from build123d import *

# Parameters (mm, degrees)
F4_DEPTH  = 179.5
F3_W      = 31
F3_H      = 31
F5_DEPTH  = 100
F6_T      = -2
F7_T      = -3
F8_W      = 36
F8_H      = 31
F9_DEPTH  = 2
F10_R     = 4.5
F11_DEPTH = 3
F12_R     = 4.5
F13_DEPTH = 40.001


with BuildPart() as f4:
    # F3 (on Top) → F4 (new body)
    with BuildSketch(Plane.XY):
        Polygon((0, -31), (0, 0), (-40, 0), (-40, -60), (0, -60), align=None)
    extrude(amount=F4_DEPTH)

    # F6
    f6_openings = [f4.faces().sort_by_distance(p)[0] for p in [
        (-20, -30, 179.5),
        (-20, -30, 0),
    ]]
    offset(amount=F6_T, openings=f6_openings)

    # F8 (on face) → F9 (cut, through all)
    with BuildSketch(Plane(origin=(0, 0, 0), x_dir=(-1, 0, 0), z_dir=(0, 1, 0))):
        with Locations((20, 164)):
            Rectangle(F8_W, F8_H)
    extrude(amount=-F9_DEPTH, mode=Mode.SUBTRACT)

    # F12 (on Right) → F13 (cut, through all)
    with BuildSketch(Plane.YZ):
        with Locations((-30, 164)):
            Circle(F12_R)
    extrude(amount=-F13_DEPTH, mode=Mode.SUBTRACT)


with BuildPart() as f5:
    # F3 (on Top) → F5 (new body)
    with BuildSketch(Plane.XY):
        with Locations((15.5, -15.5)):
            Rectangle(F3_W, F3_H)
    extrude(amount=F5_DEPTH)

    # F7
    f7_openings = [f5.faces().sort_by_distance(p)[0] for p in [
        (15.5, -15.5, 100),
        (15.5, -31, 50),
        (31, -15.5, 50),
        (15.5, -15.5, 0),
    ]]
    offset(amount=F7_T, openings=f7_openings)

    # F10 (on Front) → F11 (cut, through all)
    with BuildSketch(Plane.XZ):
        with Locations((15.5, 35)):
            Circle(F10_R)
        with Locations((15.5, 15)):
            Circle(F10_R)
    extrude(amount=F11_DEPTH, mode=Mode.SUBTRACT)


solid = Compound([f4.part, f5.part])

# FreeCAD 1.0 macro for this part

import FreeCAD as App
import Part
import Sketcher
from FreeCAD import Vector
Q = App.Units.Quantity


def faces_at(feature, points):
    """Names of the faces that lie closest to the given points."""
    faces = feature.Shape.Faces
    near = lambda p: min(range(len(faces)), key=lambda i: faces[i].distToShape(Part.Vertex(*p))[0])
    return sorted({f"Face{near(p) + 1}" for p in points})

doc = App.newDocument("Part")
params = doc.addObject("Spreadsheet::Sheet", "Params")
for row, (alias, value) in enumerate([
    ("sketch1_width", "40 mm"),
    ("sketch1_height", "60 mm"),
    ("pad1_length", "179.5 mm"),
    ("thickness_wall", "2 mm"),
    ("sketch2_width", "36 mm"),
    ("sketch2_height", "31 mm"),
    ("pocket1_length", "2 mm"),
    ("sketch3_diameter", "9 mm"),
    ("sketch4_width", "31 mm"),
    ("pad2_length", "100 mm"),
    ("thickness2_wall", "3 mm"),
    ("sketch5_diameter", "9 mm"),
], start=1):
    params.set(f"A{row}", alias)
    params.set(f"B{row}", "=" + value)
    params.setAlias(f"B{row}", alias)

body = doc.addObject("PartDesign::Body", "Body")

sketch1 = body.newObject("Sketcher::SketchObject", "Sketch")
sketch1.AttachmentSupport = (doc.getObject("XY_Plane"), [""])
sketch1.MapMode = "FlatFace"
sketch1.addGeometry([
    Part.LineSegment(Vector(0, 0, 0), Vector(-40, 0, 0)),
    Part.LineSegment(Vector(-40, 0, 0), Vector(-40, -60, 0)),
    Part.LineSegment(Vector(-40, -60, 0), Vector(0, -60, 0)),
    Part.LineSegment(Vector(0, -60, 0), Vector(0, 0, 0)),
], False)
sketch1.addConstraint([
    Sketcher.Constraint("Coincident", 0, 2, 1, 1),
    Sketcher.Constraint("Coincident", 1, 2, 2, 1),
    Sketcher.Constraint("Coincident", 2, 2, 3, 1),
    Sketcher.Constraint("Coincident", 3, 2, 0, 1),
    Sketcher.Constraint("Horizontal", 0),
    Sketcher.Constraint("Vertical", 1),
    Sketcher.Constraint("Horizontal", 2),
    Sketcher.Constraint("Vertical", 3),
    Sketcher.Constraint("Coincident", 3, 2, -1, 1),
    Sketcher.Constraint("DistanceX", 0, 2, 0, 1, Q("40 mm")),
    Sketcher.Constraint("DistanceY", 1, 2, 1, 1, Q("60 mm")),
])
sketch1.setExpression("Constraints[9]", "Params.sketch1_width")
sketch1.setExpression("Constraints[10]", "Params.sketch1_height")
pad1 = body.newObject("PartDesign::Pad", "Pad")
pad1.Profile = sketch1
pad1.setExpression("Length", "Params.pad1_length")
doc.recompute()

thickness = body.newObject("PartDesign::Thickness", "Thickness")
thickness.Base = (pad1, faces_at(pad1, [(-20, -30, 179.5), (-20, -30, 0)]))
thickness.setExpression("Value", "Params.thickness_wall")
thickness.Reversed = True
thickness.Join = "Arc"

sketch2 = body.newObject("Sketcher::SketchObject", "Sketch001")
sketch2.AttachmentSupport = (doc.getObject("XZ_Plane"), [""])
sketch2.MapMode = "FlatFace"
sketch2.addGeometry([
    Part.LineSegment(Vector(-2, 180, 0), Vector(-2, 148, 0)),
    Part.LineSegment(Vector(-2, 148, 0), Vector(-38, 148, 0)),
    Part.LineSegment(Vector(-38, 148, 0), Vector(-38, 180, 0)),
    Part.LineSegment(Vector(-38, 180, 0), Vector(-2, 180, 0)),
], False)
sketch2.addConstraint([
    Sketcher.Constraint("Coincident", 0, 2, 1, 1),
    Sketcher.Constraint("Coincident", 1, 2, 2, 1),
    Sketcher.Constraint("Coincident", 2, 2, 3, 1),
    Sketcher.Constraint("Coincident", 3, 2, 0, 1),
    Sketcher.Constraint("Vertical", 0),
    Sketcher.Constraint("Horizontal", 1),
    Sketcher.Constraint("Vertical", 2),
    Sketcher.Constraint("Horizontal", 3),
    Sketcher.Constraint("DistanceX", 1, 2, 1, 1, Q("36 mm")),
    Sketcher.Constraint("DistanceY", 0, 2, 0, 1, Q("31 mm")),
    Sketcher.Constraint("DistanceX", 0, 2, -1, 1, Q("2 mm")),
    Sketcher.Constraint("DistanceY", -1, 1, 0, 2, Q("148.5 mm")),
])
sketch2.setExpression("Constraints[8]", "Params.sketch2_width")
sketch2.setExpression("Constraints[9]", "Params.sketch2_height")
pocket1 = body.newObject("PartDesign::Pocket", "Pocket")
pocket1.Profile = sketch2
pocket1.setExpression("Length", "Params.pocket1_length")
pocket1.Reversed = True

sketch3 = body.newObject("Sketcher::SketchObject", "Sketch002")
sketch3.AttachmentSupport = (doc.getObject("YZ_Plane"), [""])
sketch3.MapMode = "FlatFace"
sketch3.addGeometry(Part.Circle(Vector(-30, 164, 0), Vector(0, 0, 1), 4.5), False)
sketch3.addConstraint([
    Sketcher.Constraint("Diameter", 0, Q("9 mm")),
    Sketcher.Constraint("DistanceX", 0, 3, -1, 1, Q("30 mm")),
    Sketcher.Constraint("DistanceY", -1, 1, 0, 3, Q("164 mm")),
])
sketch3.setExpression("Constraints[0]", "Params.sketch3_diameter")
pocket2 = body.newObject("PartDesign::Pocket", "Pocket001")
pocket2.Profile = sketch3
pocket2.Type = "ThroughAll"
body2 = doc.addObject("PartDesign::Body", "Body001")

sketch4 = body2.newObject("Sketcher::SketchObject", "Sketch003")
sketch4.AttachmentSupport = (doc.getObject("XY_Plane001"), [""])
sketch4.MapMode = "FlatFace"
sketch4.addGeometry([
    Part.LineSegment(Vector(0, 0, 0), Vector(0, -31, 0)),
    Part.LineSegment(Vector(0, -31, 0), Vector(31, -31, 0)),
    Part.LineSegment(Vector(31, -31, 0), Vector(31, 0, 0)),
    Part.LineSegment(Vector(31, 0, 0), Vector(0, 0, 0)),
], False)
sketch4.addConstraint([
    Sketcher.Constraint("Coincident", 0, 2, 1, 1),
    Sketcher.Constraint("Coincident", 1, 2, 2, 1),
    Sketcher.Constraint("Coincident", 2, 2, 3, 1),
    Sketcher.Constraint("Coincident", 3, 2, 0, 1),
    Sketcher.Constraint("Vertical", 0),
    Sketcher.Constraint("Horizontal", 1),
    Sketcher.Constraint("Vertical", 2),
    Sketcher.Constraint("Horizontal", 3),
    Sketcher.Constraint("Coincident", 3, 2, -1, 1),
    Sketcher.Constraint("Equal", 3, 0),
    Sketcher.Constraint("DistanceX", 1, 1, 1, 2, Q("31 mm")),
])
sketch4.setExpression("Constraints[10]", "Params.sketch4_width")
pad2 = body2.newObject("PartDesign::Pad", "Pad001")
pad2.Profile = sketch4
pad2.setExpression("Length", "Params.pad2_length")
doc.recompute()

thickness2 = body2.newObject("PartDesign::Thickness", "Thickness001")
thickness2.Base = (pad2, faces_at(pad2, [
    (15.5, -15.5, 100),
    (15.5, -31, 50),
    (31, -15.5, 50),
    (15.5, -15.5, 0),
]))
thickness2.setExpression("Value", "Params.thickness2_wall")
thickness2.Reversed = True
thickness2.Join = "Arc"

sketch5 = body2.newObject("Sketcher::SketchObject", "Sketch004")
sketch5.AttachmentSupport = (doc.getObject("XZ_Plane001"), [""])
sketch5.MapMode = "FlatFace"
sketch5.addGeometry([
    Part.Circle(Vector(15.5, 35, 0), Vector(0, 0, 1), 4.5),
    Part.Circle(Vector(15.5, 15, 0), Vector(0, 0, 1), 4.5),
], False)
sketch5.addConstraint([
    Sketcher.Constraint("Equal", 0, 1),
    Sketcher.Constraint("Vertical", 0, 3, 1, 3),
    Sketcher.Constraint("Diameter", 0, Q("9 mm")),
    Sketcher.Constraint("DistanceY", -1, 1, 0, 3, Q("35 mm")),
    Sketcher.Constraint("DistanceY", -1, 1, 1, 3, Q("15 mm")),
    Sketcher.Constraint("DistanceX", -1, 1, 0, 3, Q("15.5 mm")),
])
sketch5.setExpression("Constraints[2]", "Params.sketch5_diameter")
pocket3 = body2.newObject("PartDesign::Pocket", "Pocket002")
pocket3.Profile = sketch5
pocket3.Type = "ThroughAll"
pocket3.Reversed = True

doc.recompute()
